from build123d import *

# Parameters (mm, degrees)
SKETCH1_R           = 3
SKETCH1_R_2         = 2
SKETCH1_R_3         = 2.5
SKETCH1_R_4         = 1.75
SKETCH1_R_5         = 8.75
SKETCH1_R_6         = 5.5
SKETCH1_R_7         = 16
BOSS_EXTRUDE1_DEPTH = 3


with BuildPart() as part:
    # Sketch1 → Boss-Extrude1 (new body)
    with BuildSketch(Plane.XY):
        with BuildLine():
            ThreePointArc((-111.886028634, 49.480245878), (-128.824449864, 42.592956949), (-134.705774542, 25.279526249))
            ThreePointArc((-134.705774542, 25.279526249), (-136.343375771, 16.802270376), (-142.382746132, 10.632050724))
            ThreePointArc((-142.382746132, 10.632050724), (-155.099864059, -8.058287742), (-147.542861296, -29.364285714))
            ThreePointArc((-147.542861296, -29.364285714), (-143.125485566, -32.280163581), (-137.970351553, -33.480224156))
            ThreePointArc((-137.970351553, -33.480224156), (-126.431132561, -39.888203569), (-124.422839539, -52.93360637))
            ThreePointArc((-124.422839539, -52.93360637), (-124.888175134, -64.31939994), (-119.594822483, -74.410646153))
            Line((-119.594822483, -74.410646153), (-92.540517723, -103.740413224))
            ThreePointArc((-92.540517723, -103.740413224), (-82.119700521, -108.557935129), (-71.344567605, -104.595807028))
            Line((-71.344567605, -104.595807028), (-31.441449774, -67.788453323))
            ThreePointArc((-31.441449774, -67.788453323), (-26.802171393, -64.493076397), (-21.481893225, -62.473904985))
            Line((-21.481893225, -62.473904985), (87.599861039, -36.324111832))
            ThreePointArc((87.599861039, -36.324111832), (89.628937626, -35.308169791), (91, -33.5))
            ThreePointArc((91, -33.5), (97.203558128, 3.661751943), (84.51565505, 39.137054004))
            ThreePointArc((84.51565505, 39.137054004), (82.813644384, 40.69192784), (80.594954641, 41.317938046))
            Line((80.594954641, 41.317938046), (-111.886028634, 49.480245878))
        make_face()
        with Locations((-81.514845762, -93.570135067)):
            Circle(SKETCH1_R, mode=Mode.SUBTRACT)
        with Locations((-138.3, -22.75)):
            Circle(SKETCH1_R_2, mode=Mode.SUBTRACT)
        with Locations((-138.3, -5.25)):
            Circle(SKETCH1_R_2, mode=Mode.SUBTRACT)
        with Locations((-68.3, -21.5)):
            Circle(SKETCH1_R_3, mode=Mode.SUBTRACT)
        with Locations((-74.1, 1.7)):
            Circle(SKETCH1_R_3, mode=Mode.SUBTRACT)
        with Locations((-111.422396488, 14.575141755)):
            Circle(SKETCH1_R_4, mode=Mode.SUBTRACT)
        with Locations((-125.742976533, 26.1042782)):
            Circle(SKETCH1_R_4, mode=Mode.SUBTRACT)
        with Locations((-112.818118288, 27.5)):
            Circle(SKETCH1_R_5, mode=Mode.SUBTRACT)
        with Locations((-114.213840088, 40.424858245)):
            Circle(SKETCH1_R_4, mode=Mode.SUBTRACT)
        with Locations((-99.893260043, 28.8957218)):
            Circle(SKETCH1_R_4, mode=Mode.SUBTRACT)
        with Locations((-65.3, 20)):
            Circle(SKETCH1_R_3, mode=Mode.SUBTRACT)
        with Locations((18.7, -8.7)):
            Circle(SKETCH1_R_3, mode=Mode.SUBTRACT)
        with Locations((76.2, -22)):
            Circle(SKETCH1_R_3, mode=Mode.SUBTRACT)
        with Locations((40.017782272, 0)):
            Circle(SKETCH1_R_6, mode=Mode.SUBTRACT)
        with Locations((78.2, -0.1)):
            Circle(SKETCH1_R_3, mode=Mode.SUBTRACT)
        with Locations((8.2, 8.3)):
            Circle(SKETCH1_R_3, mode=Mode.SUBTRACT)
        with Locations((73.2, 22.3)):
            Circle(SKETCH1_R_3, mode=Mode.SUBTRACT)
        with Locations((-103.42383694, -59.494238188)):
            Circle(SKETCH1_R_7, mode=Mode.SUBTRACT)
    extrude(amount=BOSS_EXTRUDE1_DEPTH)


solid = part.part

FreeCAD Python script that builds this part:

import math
import FreeCAD as App
import Part
import Sketcher
from FreeCAD import Vector
Q = App.Units.Quantity

doc = App.newDocument("Part")
params = doc.addObject("Spreadsheet::Sheet", "Params")
for row, (alias, value) in enumerate([
    ("sketch1_diameter", "6 mm"),
    ("sketch1_diameter2", "32 mm"),
    ("sketch1_diameter3", "4 mm"),
    ("sketch1_diameter4", "5 mm"),
    ("sketch1_diameter5", "11 mm"),
    ("pad1_length", "3 mm"),
], start=1):
    params.set(f"A{row}", alias)
    params.set(f"B{row}", "=" + value)
    params.setAlias(f"B{row}", alias)

body = doc.addObject("PartDesign::Body", "Body")

sketch1 = body.newObject("Sketcher::SketchObject", "Sketch")
sketch1.AttachmentSupport = (doc.getObject("XY_Plane"), [""])
sketch1.MapMode = "FlatFace"
sketch1.addGeometry([
    Part.ArcOfCircle(Part.Circle(Vector(-112.8, 27.5, 0), Vector(0, 0, 1), 22), math.radians(88), math.radians(186)),
    Part.ArcOfCircle(Part.Circle(Vector(-149.6, 23.8, 0), Vector(0, 0, 1), 15), math.radians(-61), math.radians(6)),
    Part.ArcOfCircle(Part.Circle(Vector(-130.3, -11.3, 0), Vector(0, 0, 1), 25), math.radians(119), math.radians(226)),
    Part.ArcOfCircle(Part.Circle(Vector(-137.2, -18.5, 0), Vector(0, 0, 1), 15), math.radians(-134), math.radians(-93)),
    Part.ArcOfCircle(Part.Circle(Vector(-138.7, -48.5, 0), Vector(0, 0, 1), 15), math.radians(-17), math.radians(87)),
    Part.ArcOfCircle(Part.Circle(Vector(-103.4, -59.5, 0), Vector(0, 0, 1), 22), math.radians(163), math.radians(223)),
    Part.LineSegment(Vector(-119.6, -74.4, 0), Vector(-92.5, -103.7, 0)),
    Part.ArcOfCircle(Part.Circle(Vector(-81.5, -93.6, 0), Vector(0, 0, 1), 15), math.radians(-137), math.radians(-47)),
    Part.LineSegment(Vector(-71.3, -104.6, 0), Vector(-31.4, -67.8, 0)),
    Part.ArcOfCircle(Part.Circle(Vector(-16.3, -84.2, 0), Vector(0, 0, 1), 22.4), math.radians(103), math.radians(133)),
    Part.LineSegment(Vector(-21.5, -62.5, 0), Vector(87.6, -36.3, 0)),
    Part.ArcOfCircle(Part.Circle(Vector(86.4, -31.5, 0), Vector(0, 0, 1), 5), math.radians(-77), math.radians(-24)),
    Part.ArcOfCircle(Part.Circle(Vector(22.7, -3, 0), Vector(0, 0, 1), 74.8), math.radians(-24), math.radians(34)),
    Part.ArcOfCircle(Part.Circle(Vector(80.4, 36.3, 0), Vector(0, 0, 1), 5), math.radians(34), math.radians(88)),
    Part.LineSegment(Vector(80.6, 41.3, 0), Vector(-111.9, 49.5, 0)),
    Part.Circle(Vector(-81.5, -93.6, 0), Vector(0, 0, 1), 3),
    Part.Circle(Vector(-103.4, -59.5, 0), Vector(0, 0, 1), 16),
    Part.Circle(Vector(-138.3, -22.8, 0), Vector(0, 0, 1), 2),
    Part.Circle(Vector(-138.3, -5.2, 0), Vector(0, 0, 1), 2),
    Part.Circle(Vector(-68.3, -21.5, 0), Vector(0, 0, 1), 2.5),
    Part.Circle(Vector(-74.1, 1.7, 0), Vector(0, 0, 1), 2.5),
    Part.Circle(Vector(-111.4, 14.6, 0), Vector(0, 0, 1), 1.8),
    Part.Circle(Vector(-125.7, 26.1, 0), Vector(0, 0, 1), 1.8),
    Part.Circle(Vector(-112.8, 27.5, 0), Vector(0, 0, 1), 8.8),
    Part.Circle(Vector(-114.2, 40.4, 0), Vector(0, 0, 1), 1.8),
    Part.Circle(Vector(-99.9, 28.9, 0), Vector(0, 0, 1), 1.8),
    Part.Circle(Vector(-65.3, 20, 0), Vector(0, 0, 1), 2.5),
    Part.Circle(Vector(18.7, -8.7, 0), Vector(0, 0, 1), 2.5),
    Part.Circle(Vector(76.2, -22, 0), Vector(0, 0, 1), 2.5),
    Part.Circle(Vector(40, 0, 0), Vector(0, 0, 1), 5.5),
    Part.Circle(Vector(78.2, -0.1, 0), Vector(0, 0, 1), 2.5),
    Part.Circle(Vector(8.2, 8.3, 0), Vector(0, 0, 1), 2.5),
    Part.Circle(Vector(73.2, 22.3, 0), Vector(0, 0, 1), 2.5),
], False)
sketch1.addConstraint([
    Sketcher.Constraint("Tangent", 0, 2, 1, 2),
    Sketcher.Constraint("Tangent", 1, 1, 2, 1),
    Sketcher.Constraint("Tangent", 2, 2, 3, 1),
    Sketcher.Constraint("Tangent", 3, 2, 4, 2),
    Sketcher.Constraint("Tangent", 4, 1, 5, 1),
    Sketcher.Constraint("Tangent", 5, 2, 6, 1),
    Sketcher.Constraint("Tangent", 6, 2, 7, 1),
    Sketcher.Constraint("Tangent", 7, 2, 8, 1),
    Sketcher.Constraint("Tangent", 8, 2, 9, 2),
    Sketcher.Constraint("Tangent", 9, 1, 10, 1),
    Sketcher.Constraint("Tangent", 10, 2, 11, 1),
    Sketcher.Constraint("Tangent", 11, 2, 12, 1),
    Sketcher.Constraint("Tangent", 12, 2, 13, 1),
    Sketcher.Constraint("Tangent", 13, 2, 14, 1),
    Sketcher.Constraint("Tangent", 14, 2, 0, 1),
    Sketcher.Constraint("Coincident", 15, 3, 7, 3),
    Sketcher.Constraint("Coincident", 16, 3, 5, 3),
    Sketcher.Constraint("Coincident", 23, 3, 0, 3),
    Sketcher.Constraint("Equal", 1, 3),
    Sketcher.Constraint("Equal", 3, 4),
    Sketcher.Constraint("Equal", 0, 5),
    Sketcher.Constraint("Equal", 4, 7),
    Sketcher.Constraint("Equal", 11, 13),
    Sketcher.Constraint("Equal", 17, 18),
    Sketcher.Constraint("Equal", 19, 20),
    Sketcher.Constraint("Equal", 21, 22),
    Sketcher.Constraint("Equal", 22, 24),
    Sketcher.Constraint("Equal", 24, 25),
    Sketcher.Constraint("Equal", 20, 26),
    Sketcher.Constraint("Equal", 26, 27),
    Sketcher.Constraint("Equal", 27, 28),
    Sketcher.Constraint("Equal", 28, 30),
    Sketcher.Constraint("Equal", 30, 31),
    Sketcher.Constraint("Equal", 31, 32),
    Sketcher.Constraint("PointOnObject", 29, 3, -1),
    Sketcher.Constraint("Perpendicular", 6, 8),
    Sketcher.Constraint("Vertical", 17, 3, 18, 3),
    Sketcher.Constraint("Diameter", 15, Q("6 mm")),
    Sketcher.Constraint("Diameter", 16, Q("32 mm")),
    Sketcher.Constraint("Diameter", 17, Q("4 mm")),
    Sketcher.Constraint("Diameter", 19, Q("5 mm")),
    Sketcher.Constraint("Diameter", 29, Q("11 mm")),
    Sketcher.Constraint("Radius", 0, Q("22 mm")),
    Sketcher.Constraint("Radius", 1, Q("15 mm")),
    Sketcher.Constraint("Radius", 2, Q("25 mm")),
    Sketcher.Constraint("Radius", 11, Q("5 mm")),
    Sketcher.Constraint("Diameter", 21, Q("3.5 mm")),
    Sketcher.Constraint("Diameter", 23, Q("17.5 mm")),
    Sketcher.Constraint("DistanceY", -1, 1, 26, 3, Q("20 mm")),
    Sketcher.Constraint("DistanceY", 28, 3, -1, 1, Q("22 mm")),
    Sketcher.Constraint("DistanceX", -1, 1, 11, 2, Q("91 mm")),
    Sketcher.Constraint("DistanceY", 3, 3, 0, 3, Q("46 mm")),
    Sketcher.Constraint("DistanceY", 19, 3, 0, 3, Q("49 mm")),
    Sketcher.Constraint("DistanceX", 19, 3, 26, 3, Q("3 mm")),
    Sketcher.Constraint("DistanceX", 19, 3, 27, 3, Q("87 mm")),
    Sketcher.Constraint("DistanceX", 28, 3, 30, 3, Q("2 mm")),
    Sketcher.Constraint("DistanceY", 27, 3, 31, 3, Q("17 mm")),
    Sketcher.Constraint("DistanceX", 31, 3, 30, 3, Q("70 mm")),
    Sketcher.Constraint("DistanceX", 32, 3, 30, 3, Q("5 mm")),
    Sketcher.Constraint("DistanceY", -1, 1, 0, 3, Q("27.5 mm")),
    Sketcher.Constraint("DistanceX", 17, 3, -1, 1, Q("138.3 mm")),
    Sketcher.Constraint("DistanceX", 19, 3, -1, 1, Q("68.3 mm")),
    Sketcher.Constraint("DistanceX", 20, 3, -1, 1, Q("74.1 mm")),
    Sketcher.Constraint("DistanceY", -1, 1, 20, 3, Q("1.7 mm")),
    Sketcher.Constraint("DistanceY", 27, 3, -1, 1, Q("8.7 mm")),
    Sketcher.Constraint("DistanceX", -1, 1, 28, 3, Q("76.2 mm")),
    Sketcher.Constraint("DistanceY", 30, 3, -1, 1, Q("0.1 mm")),
    Sketcher.Constraint("DistanceY", -1, 1, 32, 3, Q("22.3 mm")),
    Sketcher.Constraint("DistanceY", 11, 2, -1, 1, Q("33.5 mm")),
    Sketcher.Constraint("DistanceY", 17, 3, 18, 3, Q("17.5 mm")),
    Sketcher.Constraint("DistanceY", 17, 3, -1, 1, Q("22.75 mm")),
    Sketcher.Constraint("Radius", 9, Q("22.386206 mm")),
    Sketcher.Constraint("Radius", 12, Q("74.841085 mm")),
    Sketcher.Constraint("DistanceX", 3, 3, 2, 3, Q("6.895 mm")),
    Sketcher.Constraint("DistanceX", 7, 3, 11, 3, Q("167.949099 mm")),
    Sketcher.Constraint("DistanceY", 11, 3, 13, 3, Q("67.784301 mm")),
    Sketcher.Constraint("DistanceX", 12, 3, 13, 3, Q("57.724201 mm")),
    Sketcher.Constraint("DistanceX", 1, 3, 22, 3, Q("23.8862 mm")),
    Sketcher.Constraint("DistanceX", 0, 2, 22, 3, Q("8.962798 mm")),
    Sketcher.Constraint("DistanceX", 4, 3, 4, 1, Q("14.317502 mm")),
    Sketcher.Constraint("Distance", 10, Q("112.172371 mm")),
    Sketcher.Constraint("Distance", 14, Q("192.65397 mm")),
    Sketcher.Constraint("DistanceX", 4, 3, -1, 1, Q("138.740341 mm")),
    Sketcher.Constraint("DistanceY", -1, 1, 21, 3, Q("14.575142 mm")),
    Sketcher.Constraint("DistanceY", -1, 1, 22, 3, Q("26.104278 mm")),
    Sketcher.Constraint("DistanceX", 24, 3, -1, 1, Q("114.21384 mm")),
    Sketcher.Constraint("DistanceY", -1, 1, 24, 3, Q("40.424858 mm")),
    Sketcher.Constraint("DistanceX", 25, 3, -1, 1, Q("99.89326 mm")),
    Sketcher.Constraint("DistanceY", -1, 1, 25, 3, Q("28.895722 mm")),
    Sketcher.Constraint("DistanceX", 8, 2, -1, 1, Q("31.44145 mm")),
    Sketcher.Constraint("DistanceX", 0, 3, 21, 3, Q("1.395722 mm")),
    Sketcher.Constraint("DistanceX", 29, 3, 11, 3, Q("46.416471 mm")),
])
sketch1.setExpression("Constraints[37]", "Params.sketch1_diameter")
sketch1.setExpression("Constraints[38]", "Params.sketch1_diameter2")
sketch1.setExpression("Constraints[39]", "Params.sketch1_diameter3")
sketch1.setExpression("Constraints[40]", "Params.sketch1_diameter4")
sketch1.setExpression("Constraints[41]", "Params.sketch1_diameter5")
pad1 = body.newObject("PartDesign::Pad", "Pad")
pad1.Profile = sketch1
pad1.setExpression("Length", "Params.pad1_length")

doc.recompute()
